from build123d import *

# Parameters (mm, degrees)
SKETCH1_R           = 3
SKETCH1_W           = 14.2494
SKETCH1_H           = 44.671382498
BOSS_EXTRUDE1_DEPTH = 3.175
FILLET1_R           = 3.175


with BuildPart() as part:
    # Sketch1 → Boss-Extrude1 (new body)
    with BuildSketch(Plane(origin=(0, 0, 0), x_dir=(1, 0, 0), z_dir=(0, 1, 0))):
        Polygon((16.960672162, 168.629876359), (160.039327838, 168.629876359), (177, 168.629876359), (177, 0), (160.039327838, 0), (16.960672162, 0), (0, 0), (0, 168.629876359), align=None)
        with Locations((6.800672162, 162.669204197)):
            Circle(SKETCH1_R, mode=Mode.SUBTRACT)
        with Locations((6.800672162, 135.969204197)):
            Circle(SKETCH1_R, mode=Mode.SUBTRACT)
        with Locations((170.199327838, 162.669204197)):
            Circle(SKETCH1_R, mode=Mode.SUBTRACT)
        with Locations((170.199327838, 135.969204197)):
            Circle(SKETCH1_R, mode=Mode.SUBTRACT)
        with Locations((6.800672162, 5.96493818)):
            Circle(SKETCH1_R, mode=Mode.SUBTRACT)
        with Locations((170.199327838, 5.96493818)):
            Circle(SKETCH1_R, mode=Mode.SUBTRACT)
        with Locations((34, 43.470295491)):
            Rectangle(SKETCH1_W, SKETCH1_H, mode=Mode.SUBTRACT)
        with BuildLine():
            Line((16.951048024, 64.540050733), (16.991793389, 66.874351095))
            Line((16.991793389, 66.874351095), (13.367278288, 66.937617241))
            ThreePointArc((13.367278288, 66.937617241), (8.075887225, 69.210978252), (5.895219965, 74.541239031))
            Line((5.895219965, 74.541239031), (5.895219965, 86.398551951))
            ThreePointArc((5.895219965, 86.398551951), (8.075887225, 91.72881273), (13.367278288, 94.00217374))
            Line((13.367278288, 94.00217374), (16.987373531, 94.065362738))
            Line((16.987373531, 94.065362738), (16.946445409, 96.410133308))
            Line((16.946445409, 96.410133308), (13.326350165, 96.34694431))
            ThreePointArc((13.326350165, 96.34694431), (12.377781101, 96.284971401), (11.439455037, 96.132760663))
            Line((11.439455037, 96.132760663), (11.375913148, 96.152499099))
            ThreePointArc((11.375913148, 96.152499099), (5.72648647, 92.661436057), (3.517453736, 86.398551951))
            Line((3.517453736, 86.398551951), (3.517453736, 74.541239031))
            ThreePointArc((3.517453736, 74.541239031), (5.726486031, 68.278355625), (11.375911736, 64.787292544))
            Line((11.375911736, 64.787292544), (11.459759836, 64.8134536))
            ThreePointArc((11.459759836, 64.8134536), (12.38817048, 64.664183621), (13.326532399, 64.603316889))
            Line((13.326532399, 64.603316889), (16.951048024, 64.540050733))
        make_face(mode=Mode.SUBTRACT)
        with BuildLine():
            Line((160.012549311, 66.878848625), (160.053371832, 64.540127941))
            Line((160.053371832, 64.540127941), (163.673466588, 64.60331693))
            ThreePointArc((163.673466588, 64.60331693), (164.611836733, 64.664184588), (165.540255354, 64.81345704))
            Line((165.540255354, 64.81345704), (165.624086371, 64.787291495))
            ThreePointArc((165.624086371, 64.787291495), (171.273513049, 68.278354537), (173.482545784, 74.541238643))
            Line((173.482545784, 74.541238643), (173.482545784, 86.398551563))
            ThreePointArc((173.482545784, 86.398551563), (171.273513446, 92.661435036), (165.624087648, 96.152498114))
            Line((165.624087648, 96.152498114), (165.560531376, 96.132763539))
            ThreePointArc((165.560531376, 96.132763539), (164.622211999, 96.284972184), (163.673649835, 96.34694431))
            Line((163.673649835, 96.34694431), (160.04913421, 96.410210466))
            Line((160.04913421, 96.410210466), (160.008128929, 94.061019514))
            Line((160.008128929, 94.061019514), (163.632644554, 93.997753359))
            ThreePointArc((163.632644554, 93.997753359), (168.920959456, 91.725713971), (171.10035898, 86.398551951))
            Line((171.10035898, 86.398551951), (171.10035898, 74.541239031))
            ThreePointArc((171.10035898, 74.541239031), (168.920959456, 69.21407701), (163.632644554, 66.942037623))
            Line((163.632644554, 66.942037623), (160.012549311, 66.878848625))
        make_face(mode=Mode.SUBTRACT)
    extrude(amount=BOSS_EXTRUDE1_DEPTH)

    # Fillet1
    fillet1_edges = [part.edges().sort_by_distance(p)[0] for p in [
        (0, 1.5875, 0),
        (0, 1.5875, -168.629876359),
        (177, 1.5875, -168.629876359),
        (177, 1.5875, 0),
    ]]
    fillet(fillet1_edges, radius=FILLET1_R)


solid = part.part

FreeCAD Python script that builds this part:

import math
import FreeCAD as App
import Part
import Sketcher
Q = App.Units.Quantity


def edges_at(feature, points):
    """Names of the edges that pass closest to the given points."""
    edges = feature.Shape.Edges
    near = lambda p: min(range(len(edges)), key=lambda i: edges[i].distToShape(Part.Vertex(*p))[0])
    return sorted({f"Edge{near(p) + 1}" for p in points})


def add_polygon(sketch, points):
    """Adds a closed chain of lines whose ends are joined by coincident constraints."""
    first, n = sketch.GeometryCount, len(points)
    for a, b in zip(points, points[1:] + points[:1]):
        sketch.addGeometry(Part.LineSegment(App.Vector(*a, 0), App.Vector(*b, 0)), False)
    for i in range(n):
        sketch.addConstraint(Sketcher.Constraint("Coincident", first + i, 2, first + (i + 1) % n, 1))

doc = App.newDocument("Part")
body = doc.addObject("PartDesign::Body", "Body")

sketch1 = body.newObject("Sketcher::SketchObject", "Sketch")
sketch1.AttachmentSupport = (doc.getObject("XZ_Plane"), [""])
sketch1.MapMode = "FlatFace"
add_polygon(sketch1, [(177, -168.629876), (0, -168.629876), (0, 0), (177, 0)])
sketch1.addGeometry(Part.Circle(App.Vector(170.199328, -5.964938, 0), App.Vector(0, 0, 1), 3), False)
sketch1.addGeometry(Part.LineSegment(App.Vector(160.012549, -66.878849, 0), App.Vector(163.632645, -66.942038, 0)), False)
sketch1.addGeometry(Part.ArcOfCircle(Part.Circle(App.Vector(163.5, -74.541239, 0), App.Vector(0, 0, 1), 7.600359), math.radians(0), math.radians(89)), False)
sketch1.addGeometry(Part.LineSegment(App.Vector(171.100359, -74.541239, 0), App.Vector(171.100359, -86.398552, 0)), False)
sketch1.addGeometry(Part.ArcOfCircle(Part.Circle(App.Vector(163.5, -86.398552, 0), App.Vector(0, 0, 1), 7.600359), math.radians(-89), math.radians(0)), False)
sketch1.addGeometry(Part.LineSegment(App.Vector(163.632645, -93.997753, 0), App.Vector(160.008129, -94.06102, 0)), False)
sketch1.addGeometry(Part.LineSegment(App.Vector(160.008129, -94.06102, 0), App.Vector(160.049134, -96.41021, 0)), False)
sketch1.addGeometry(Part.LineSegment(App.Vector(160.049134, -96.41021, 0), App.Vector(163.67365, -96.346944, 0)), False)
sketch1.addGeometry(Part.ArcOfCircle(Part.Circle(App.Vector(163.5, -86.398552, 0), App.Vector(0, 0, 1), 9.949908), math.radians(-89), math.radians(-78.048098)), False)
sketch1.addGeometry(Part.LineSegment(App.Vector(165.560531, -96.132764, 0), App.Vector(165.624088, -96.152498, 0)), False)
sketch1.addGeometry(Part.ArcOfCircle(Part.Circle(App.Vector(163.5, -86.398552, 0), App.Vector(0, 0, 1), 9.982546), math.radians(-77.714673), math.radians(0)), False)
sketch1.addGeometry(Part.LineSegment(App.Vector(173.482546, -86.398552, 0), App.Vector(173.482546, -74.541239, 0)), False)
sketch1.addGeometry(Part.ArcOfCircle(Part.Circle(App.Vector(163.5, -74.541239, 0), App.Vector(0, 0, 1), 9.982546), math.radians(0), math.radians(77.714679)), False)
sketch1.addGeometry(Part.LineSegment(App.Vector(165.624086, -64.787291, 0), App.Vector(165.540255, -64.813457, 0)), False)
sketch1.addGeometry(Part.ArcOfCircle(Part.Circle(App.Vector(163.5, -74.541239, 0), App.Vector(0, 0, 1), 9.939436), math.radians(78.154766), math.radians(89)), False)
sketch1.addGeometry(Part.LineSegment(App.Vector(163.673467, -64.603317, 0), App.Vector(160.053372, -64.540128, 0)), False)
sketch1.addGeometry(Part.LineSegment(App.Vector(160.053372, -64.540128, 0), App.Vector(160.012549, -66.878849, 0)), False)
sketch1.addGeometry(Part.Circle(App.Vector(6.800672, -5.964938, 0), App.Vector(0, 0, 1), 3), False)
add_polygon(sketch1, [(26.8753, -21.134604), (26.8753, -65.805987), (41.1247, -65.805987), (41.1247, -21.134604)])
sketch1.addGeometry(Part.LineSegment(App.Vector(16.951048, -64.540051, 0), App.Vector(13.326532, -64.603317, 0)), False)
sketch1.addGeometry(Part.ArcOfCircle(Part.Circle(App.Vector(13.499999, -74.541239, 0), App.Vector(0, 0, 1), 9.939436), math.radians(91), math.radians(101.845138)), False)
sketch1.addGeometry(Part.LineSegment(App.Vector(11.45976, -64.813454, 0), App.Vector(11.375912, -64.787293, 0)), False)
sketch1.addGeometry(Part.ArcOfCircle(Part.Circle(App.Vector(13.5, -74.541239, 0), App.Vector(0, 0, 1), 9.982546), math.radians(102.285327), math.radians(180)), False)
sketch1.addGeometry(Part.LineSegment(App.Vector(3.517454, -74.541239, 0), App.Vector(3.517454, -86.398552, 0)), False)
sketch1.addGeometry(Part.ArcOfCircle(Part.Circle(App.Vector(13.5, -86.398552, 0), App.Vector(0, 0, 1), 9.982546), math.radians(180), math.radians(257.714679)), False)
sketch1.addGeometry(Part.LineSegment(App.Vector(11.375913, -96.152499, 0), App.Vector(11.439455, -96.132761, 0)), False)
sketch1.addGeometry(Part.ArcOfCircle(Part.Circle(App.Vector(13.5, -86.398552, 0), App.Vector(0, 0, 1), 9.949908), math.radians(-101.951982), math.radians(-91)), False)
sketch1.addGeometry(Part.LineSegment(App.Vector(13.32635, -96.346944, 0), App.Vector(16.946445, -96.410133, 0)), False)
sketch1.addGeometry(Part.LineSegment(App.Vector(16.946445, -96.410133, 0), App.Vector(16.987374, -94.065363, 0)), False)
sketch1.addGeometry(Part.LineSegment(App.Vector(16.987374, -94.065363, 0), App.Vector(13.367278, -94.002174, 0)), False)
sketch1.addGeometry(Part.ArcOfCircle(Part.Circle(App.Vector(13.5, -86.398552, 0), App.Vector(0, 0, 1), 7.60478), math.radians(-180), math.radians(-91)), False)
sketch1.addGeometry(Part.LineSegment(App.Vector(5.89522, -86.398552, 0), App.Vector(5.89522, -74.541239, 0)), False)
sketch1.addGeometry(Part.ArcOfCircle(Part.Circle(App.Vector(13.5, -74.541239, 0), App.Vector(0, 0, 1), 7.60478), math.radians(91), math.radians(180)), False)
sketch1.addGeometry(Part.LineSegment(App.Vector(13.367278, -66.937617, 0), App.Vector(16.991793, -66.874351, 0)), False)
sketch1.addGeometry(Part.LineSegment(App.Vector(16.991793, -66.874351, 0), App.Vector(16.951048, -64.540051, 0)), False)
sketch1.addGeometry(Part.Circle(App.Vector(170.199328, -135.969204, 0), App.Vector(0, 0, 1), 3), False)
sketch1.addGeometry(Part.Circle(App.Vector(170.199328, -162.669204, 0), App.Vector(0, 0, 1), 3), False)
sketch1.addGeometry(Part.Circle(App.Vector(6.800672, -135.969204, 0), App.Vector(0, 0, 1), 3), False)
sketch1.addGeometry(Part.Circle(App.Vector(6.800672, -162.669204, 0), App.Vector(0, 0, 1), 3), False)
sketch1.addConstraint(Sketcher.Constraint("Tangent", 5, 2, 6, 2))
sketch1.addConstraint(Sketcher.Constraint("Tangent", 6, 1, 7, 1))
sketch1.addConstraint(Sketcher.Constraint("Tangent", 7, 2, 8, 2))
sketch1.addConstraint(Sketcher.Constraint("Tangent", 8, 1, 9, 1))
sketch1.addConstraint(Sketcher.Constraint("Coincident", 9, 2, 10, 1))
sketch1.addConstraint(Sketcher.Constraint("Coincident", 10, 2, 11, 1))
sketch1.addConstraint(Sketcher.Constraint("Tangent", 11, 2, 12, 1))
sketch1.addConstraint(Sketcher.Constraint("Coincident", 12, 2, 13, 1))
sketch1.addConstraint(Sketcher.Constraint("Coincident", 13, 2, 14, 1))
sketch1.addConstraint(Sketcher.Constraint("Tangent", 14, 2, 15, 1))
sketch1.addConstraint(Sketcher.Constraint("Tangent", 15, 2, 16, 1))
sketch1.addConstraint(Sketcher.Constraint("Coincident", 16, 2, 17, 1))
sketch1.addConstraint(Sketcher.Constraint("Coincident", 17, 2, 18, 1))
sketch1.addConstraint(Sketcher.Constraint("Tangent", 18, 2, 19, 1))
sketch1.addConstraint(Sketcher.Constraint("Coincident", 19, 2, 20, 1))
sketch1.addConstraint(Sketcher.Constraint("Coincident", 20, 2, 5, 1))
sketch1.addConstraint(Sketcher.Constraint("Tangent", 26, 2, 27, 1))
sketch1.addConstraint(Sketcher.Constraint("Coincident", 27, 2, 28, 1))
sketch1.addConstraint(Sketcher.Constraint("Coincident", 28, 2, 29, 1))
sketch1.addConstraint(Sketcher.Constraint("Tangent", 29, 2, 30, 1))
sketch1.addConstraint(Sketcher.Constraint("Tangent", 30, 2, 31, 1))
sketch1.addConstraint(Sketcher.Constraint("Coincident", 31, 2, 32, 1))
sketch1.addConstraint(Sketcher.Constraint("Coincident", 32, 2, 33, 1))
sketch1.addConstraint(Sketcher.Constraint("Tangent", 33, 2, 34, 1))
sketch1.addConstraint(Sketcher.Constraint("Coincident", 34, 2, 35, 1))
sketch1.addConstraint(Sketcher.Constraint("Coincident", 35, 2, 36, 1))
sketch1.addConstraint(Sketcher.Constraint("Tangent", 36, 2, 37, 2))
sketch1.addConstraint(Sketcher.Constraint("Tangent", 37, 1, 38, 1))
sketch1.addConstraint(Sketcher.Constraint("Tangent", 38, 2, 39, 2))
sketch1.addConstraint(Sketcher.Constraint("Tangent", 39, 1, 40, 1))
sketch1.addConstraint(Sketcher.Constraint("Coincident", 40, 2, 41, 1))
sketch1.addConstraint(Sketcher.Constraint("Coincident", 41, 2, 26, 1))
sketch1.addConstraint(Sketcher.Constraint("Horizontal", 0))
sketch1.addConstraint(Sketcher.Constraint("Vertical", 1))
sketch1.addConstraint(Sketcher.Constraint("Horizontal", 2))
sketch1.addConstraint(Sketcher.Constraint("Vertical", 3))
sketch1.addConstraint(Sketcher.Constraint("Vertical", 7))
sketch1.addConstraint(Sketcher.Constraint("Vertical", 15))
sketch1.addConstraint(Sketcher.Constraint("Vertical", 22))
sketch1.addConstraint(Sketcher.Constraint("Horizontal", 23))
sketch1.addConstraint(Sketcher.Constraint("Vertical", 24))
sketch1.addConstraint(Sketcher.Constraint("Horizontal", 25))
sketch1.addConstraint(Sketcher.Constraint("Vertical", 30))
sketch1.addConstraint(Sketcher.Constraint("Vertical", 38))
sketch1.addConstraint(Sketcher.Constraint("Coincident", 1, 2, -1, 1))
sketch1.addConstraint(Sketcher.Constraint("Coincident", 12, 3, 8, 3))
sketch1.addConstraint(Sketcher.Constraint("Coincident", 14, 3, 8, 3))
sketch1.addConstraint(Sketcher.Constraint("Coincident", 16, 3, 6, 3))
sketch1.addConstraint(Sketcher.Constraint("Coincident", 18, 3, 6, 3))
sketch1.addConstraint(Sketcher.Constraint("Coincident", 29, 3, 27, 3))
sketch1.addConstraint(Sketcher.Constraint("Coincident", 33, 3, 31, 3))
sketch1.addConstraint(Sketcher.Constraint("Coincident", 37, 3, 31, 3))
sketch1.addConstraint(Sketcher.Constraint("Coincident", 39, 3, 27, 3))
sketch1.addConstraint(Sketcher.Constraint("Equal", 6, 8))
sketch1.addConstraint(Sketcher.Constraint("Equal", 4, 21))
sketch1.addConstraint(Sketcher.Constraint("Equal", 18, 27))
sketch1.addConstraint(Sketcher.Constraint("Equal", 16, 29))
sketch1.addConstraint(Sketcher.Constraint("Equal", 29, 31))
sketch1.addConstraint(Sketcher.Constraint("Equal", 12, 33))
sketch1.addConstraint(Sketcher.Constraint("Equal", 21, 42))
sketch1.addConstraint(Sketcher.Constraint("Equal", 42, 43))
sketch1.addConstraint(Sketcher.Constraint("Equal", 43, 44))
sketch1.addConstraint(Sketcher.Constraint("Equal", 44, 45))
sketch1.addConstraint(Sketcher.Constraint("Perpendicular", 9, 10))
sketch1.addConstraint(Sketcher.Constraint("Perpendicular", 10, 11))
sketch1.addConstraint(Sketcher.Constraint("Parallel", 5, 19))
sketch1.addConstraint(Sketcher.Constraint("Perpendicular", 19, 20))
sketch1.addConstraint(Sketcher.Constraint("Parallel", 11, 26))
sketch1.addConstraint(Sketcher.Constraint("Perpendicular", 20, 34))
sketch1.addConstraint(Sketcher.Constraint("Perpendicular", 34, 35))
sketch1.addConstraint(Sketcher.Constraint("Perpendicular", 35, 36))
sketch1.addConstraint(Sketcher.Constraint("Parallel", 26, 40))
sketch1.addConstraint(Sketcher.Constraint("Perpendicular", 40, 41))
sketch1.addConstraint(Sketcher.Constraint("Horizontal", 4, 3, 21, 3))
sketch1.addConstraint(Sketcher.Constraint("Horizontal", 18, 3, 27, 3))
sketch1.addConstraint(Sketcher.Constraint("Horizontal", 14, 3, 31, 3))
sketch1.addConstraint(Sketcher.Constraint("Horizontal", 42, 3, 44, 3))
sketch1.addConstraint(Sketcher.Constraint("Horizontal", 43, 3, 45, 3))
sketch1.addConstraint(Sketcher.Constraint("Horizontal", 18, 2, 26, 2))
sketch1.addConstraint(Sketcher.Constraint("Horizontal", 16, 2, 28, 2))
sketch1.addConstraint(Sketcher.Constraint("Horizontal", 13, 2, 31, 2))
sketch1.addConstraint(Sketcher.Constraint("Vertical", 4, 3, 42, 3))
sketch1.addConstraint(Sketcher.Constraint("Vertical", 42, 3, 43, 3))
sketch1.addConstraint(Sketcher.Constraint("Vertical", 21, 3, 44, 3))
sketch1.addConstraint(Sketcher.Constraint("Vertical", 44, 3, 45, 3))
sketch1.addConstraint(Sketcher.Constraint("Vertical", 13, 2, 16, 2))
sketch1.addConstraint(Sketcher.Constraint("Equal", 11, 26))
sketch1.addConstraint(Sketcher.Constraint("Equal", 19, 34))
sketch1.addConstraint(Sketcher.Constraint("Diameter", 4, 6.0))
sketch1.addConstraint(Sketcher.Constraint("DistanceX", 0, 2, 0, 1, 177.0))
sketch1.addConstraint(Sketcher.Constraint("Angle", 5, Q("-1 deg")))
sketch1.addConstraint(Sketcher.Constraint("DistanceX", 27, 3, 16, 3, 150.0))
sketch1.addConstraint(Sketcher.Constraint("DistanceX", -1, 1, 6, 3, 163.5))
sketch1.addConstraint(Sketcher.Constraint("DistanceY", 43, 3, 42, 3, 26.7))
sketch1.addConstraint(Sketcher.Constraint("Radius", 6, 7.600359))
sketch1.addConstraint(Sketcher.Constraint("Radius", 37, 7.60478))
sketch1.addConstraint(Sketcher.Constraint("DistanceX", 23, 1, 23, 2, 14.2494))
sketch1.addConstraint(Sketcher.Constraint("Radius", 12, 9.949908))
sketch1.addConstraint(Sketcher.Constraint("Radius", 14, 9.982546))
sketch1.addConstraint(Sketcher.Constraint("Radius", 18, 9.939436))
sketch1.addConstraint(Sketcher.Constraint("DistanceX", 30, 2, 32, 2, 7.922001))
sketch1.addConstraint(Sketcher.Constraint("DistanceY", 13, 2, -1, 1, 96.152498))
sketch1.addConstraint(Sketcher.Constraint("DistanceX", -1, 1, 22, 2, 26.8753))
sketch1.addConstraint(Sketcher.Constraint("DistanceY", 6, 3, 4, 3, 68.576301))
sketch1.addConstraint(Sketcher.Constraint("Distance", 13, 0.06655))
sketch1.addConstraint(Sketcher.Constraint("Distance", 17, 0.08782))
sketch1.addConstraint(Sketcher.Constraint("DistanceY", 1, 1, 1, 2, 168.629876))
sketch1.addConstraint(Sketcher.Constraint("DistanceY", 7, 2, 7, 1, 11.857313))
sketch1.addConstraint(Sketcher.Constraint("DistanceY", 22, 2, 22, 1, 44.671382))
sketch1.addConstraint(Sketcher.Constraint("DistanceY", 4, 3, -1, 1, 5.964938))
sketch1.addConstraint(Sketcher.Constraint("DistanceX", -1, 1, 9, 2, 160.008129))
sketch1.addConstraint(Sketcher.Constraint("DistanceX", -1, 1, 19, 2, 160.053372))
sketch1.addConstraint(Sketcher.Constraint("DistanceX", -1, 1, 27, 2, 11.45976))
sketch1.addConstraint(Sketcher.Constraint("DistanceX", 16, 3, 4, 3, 6.699328))
sketch1.addConstraint(Sketcher.Constraint("DistanceY", 27, 3, 22, 2, 8.735252))
sketch1.addConstraint(Sketcher.Constraint("DistanceX", -1, 1, 21, 3, 6.800672))
sketch1.addConstraint(Sketcher.Constraint("DistanceY", 42, 3, -1, 1, 135.969204))
pad1 = body.newObject("PartDesign::Pad", "Pad")
pad1.Profile = sketch1
pad1.Length = 3.175
pad1.Reversed = True
doc.recompute()

fillet = body.newObject("PartDesign::Fillet", "Fillet")
fillet.Base = (pad1, edges_at(pad1, [
    (0, 1.587, 0),
    (0, 1.587, -168.63),
    (177, 1.587, -168.63),
    (177, 1.587, 0),
]))
fillet.Radius = 3.175

doc.recompute()
